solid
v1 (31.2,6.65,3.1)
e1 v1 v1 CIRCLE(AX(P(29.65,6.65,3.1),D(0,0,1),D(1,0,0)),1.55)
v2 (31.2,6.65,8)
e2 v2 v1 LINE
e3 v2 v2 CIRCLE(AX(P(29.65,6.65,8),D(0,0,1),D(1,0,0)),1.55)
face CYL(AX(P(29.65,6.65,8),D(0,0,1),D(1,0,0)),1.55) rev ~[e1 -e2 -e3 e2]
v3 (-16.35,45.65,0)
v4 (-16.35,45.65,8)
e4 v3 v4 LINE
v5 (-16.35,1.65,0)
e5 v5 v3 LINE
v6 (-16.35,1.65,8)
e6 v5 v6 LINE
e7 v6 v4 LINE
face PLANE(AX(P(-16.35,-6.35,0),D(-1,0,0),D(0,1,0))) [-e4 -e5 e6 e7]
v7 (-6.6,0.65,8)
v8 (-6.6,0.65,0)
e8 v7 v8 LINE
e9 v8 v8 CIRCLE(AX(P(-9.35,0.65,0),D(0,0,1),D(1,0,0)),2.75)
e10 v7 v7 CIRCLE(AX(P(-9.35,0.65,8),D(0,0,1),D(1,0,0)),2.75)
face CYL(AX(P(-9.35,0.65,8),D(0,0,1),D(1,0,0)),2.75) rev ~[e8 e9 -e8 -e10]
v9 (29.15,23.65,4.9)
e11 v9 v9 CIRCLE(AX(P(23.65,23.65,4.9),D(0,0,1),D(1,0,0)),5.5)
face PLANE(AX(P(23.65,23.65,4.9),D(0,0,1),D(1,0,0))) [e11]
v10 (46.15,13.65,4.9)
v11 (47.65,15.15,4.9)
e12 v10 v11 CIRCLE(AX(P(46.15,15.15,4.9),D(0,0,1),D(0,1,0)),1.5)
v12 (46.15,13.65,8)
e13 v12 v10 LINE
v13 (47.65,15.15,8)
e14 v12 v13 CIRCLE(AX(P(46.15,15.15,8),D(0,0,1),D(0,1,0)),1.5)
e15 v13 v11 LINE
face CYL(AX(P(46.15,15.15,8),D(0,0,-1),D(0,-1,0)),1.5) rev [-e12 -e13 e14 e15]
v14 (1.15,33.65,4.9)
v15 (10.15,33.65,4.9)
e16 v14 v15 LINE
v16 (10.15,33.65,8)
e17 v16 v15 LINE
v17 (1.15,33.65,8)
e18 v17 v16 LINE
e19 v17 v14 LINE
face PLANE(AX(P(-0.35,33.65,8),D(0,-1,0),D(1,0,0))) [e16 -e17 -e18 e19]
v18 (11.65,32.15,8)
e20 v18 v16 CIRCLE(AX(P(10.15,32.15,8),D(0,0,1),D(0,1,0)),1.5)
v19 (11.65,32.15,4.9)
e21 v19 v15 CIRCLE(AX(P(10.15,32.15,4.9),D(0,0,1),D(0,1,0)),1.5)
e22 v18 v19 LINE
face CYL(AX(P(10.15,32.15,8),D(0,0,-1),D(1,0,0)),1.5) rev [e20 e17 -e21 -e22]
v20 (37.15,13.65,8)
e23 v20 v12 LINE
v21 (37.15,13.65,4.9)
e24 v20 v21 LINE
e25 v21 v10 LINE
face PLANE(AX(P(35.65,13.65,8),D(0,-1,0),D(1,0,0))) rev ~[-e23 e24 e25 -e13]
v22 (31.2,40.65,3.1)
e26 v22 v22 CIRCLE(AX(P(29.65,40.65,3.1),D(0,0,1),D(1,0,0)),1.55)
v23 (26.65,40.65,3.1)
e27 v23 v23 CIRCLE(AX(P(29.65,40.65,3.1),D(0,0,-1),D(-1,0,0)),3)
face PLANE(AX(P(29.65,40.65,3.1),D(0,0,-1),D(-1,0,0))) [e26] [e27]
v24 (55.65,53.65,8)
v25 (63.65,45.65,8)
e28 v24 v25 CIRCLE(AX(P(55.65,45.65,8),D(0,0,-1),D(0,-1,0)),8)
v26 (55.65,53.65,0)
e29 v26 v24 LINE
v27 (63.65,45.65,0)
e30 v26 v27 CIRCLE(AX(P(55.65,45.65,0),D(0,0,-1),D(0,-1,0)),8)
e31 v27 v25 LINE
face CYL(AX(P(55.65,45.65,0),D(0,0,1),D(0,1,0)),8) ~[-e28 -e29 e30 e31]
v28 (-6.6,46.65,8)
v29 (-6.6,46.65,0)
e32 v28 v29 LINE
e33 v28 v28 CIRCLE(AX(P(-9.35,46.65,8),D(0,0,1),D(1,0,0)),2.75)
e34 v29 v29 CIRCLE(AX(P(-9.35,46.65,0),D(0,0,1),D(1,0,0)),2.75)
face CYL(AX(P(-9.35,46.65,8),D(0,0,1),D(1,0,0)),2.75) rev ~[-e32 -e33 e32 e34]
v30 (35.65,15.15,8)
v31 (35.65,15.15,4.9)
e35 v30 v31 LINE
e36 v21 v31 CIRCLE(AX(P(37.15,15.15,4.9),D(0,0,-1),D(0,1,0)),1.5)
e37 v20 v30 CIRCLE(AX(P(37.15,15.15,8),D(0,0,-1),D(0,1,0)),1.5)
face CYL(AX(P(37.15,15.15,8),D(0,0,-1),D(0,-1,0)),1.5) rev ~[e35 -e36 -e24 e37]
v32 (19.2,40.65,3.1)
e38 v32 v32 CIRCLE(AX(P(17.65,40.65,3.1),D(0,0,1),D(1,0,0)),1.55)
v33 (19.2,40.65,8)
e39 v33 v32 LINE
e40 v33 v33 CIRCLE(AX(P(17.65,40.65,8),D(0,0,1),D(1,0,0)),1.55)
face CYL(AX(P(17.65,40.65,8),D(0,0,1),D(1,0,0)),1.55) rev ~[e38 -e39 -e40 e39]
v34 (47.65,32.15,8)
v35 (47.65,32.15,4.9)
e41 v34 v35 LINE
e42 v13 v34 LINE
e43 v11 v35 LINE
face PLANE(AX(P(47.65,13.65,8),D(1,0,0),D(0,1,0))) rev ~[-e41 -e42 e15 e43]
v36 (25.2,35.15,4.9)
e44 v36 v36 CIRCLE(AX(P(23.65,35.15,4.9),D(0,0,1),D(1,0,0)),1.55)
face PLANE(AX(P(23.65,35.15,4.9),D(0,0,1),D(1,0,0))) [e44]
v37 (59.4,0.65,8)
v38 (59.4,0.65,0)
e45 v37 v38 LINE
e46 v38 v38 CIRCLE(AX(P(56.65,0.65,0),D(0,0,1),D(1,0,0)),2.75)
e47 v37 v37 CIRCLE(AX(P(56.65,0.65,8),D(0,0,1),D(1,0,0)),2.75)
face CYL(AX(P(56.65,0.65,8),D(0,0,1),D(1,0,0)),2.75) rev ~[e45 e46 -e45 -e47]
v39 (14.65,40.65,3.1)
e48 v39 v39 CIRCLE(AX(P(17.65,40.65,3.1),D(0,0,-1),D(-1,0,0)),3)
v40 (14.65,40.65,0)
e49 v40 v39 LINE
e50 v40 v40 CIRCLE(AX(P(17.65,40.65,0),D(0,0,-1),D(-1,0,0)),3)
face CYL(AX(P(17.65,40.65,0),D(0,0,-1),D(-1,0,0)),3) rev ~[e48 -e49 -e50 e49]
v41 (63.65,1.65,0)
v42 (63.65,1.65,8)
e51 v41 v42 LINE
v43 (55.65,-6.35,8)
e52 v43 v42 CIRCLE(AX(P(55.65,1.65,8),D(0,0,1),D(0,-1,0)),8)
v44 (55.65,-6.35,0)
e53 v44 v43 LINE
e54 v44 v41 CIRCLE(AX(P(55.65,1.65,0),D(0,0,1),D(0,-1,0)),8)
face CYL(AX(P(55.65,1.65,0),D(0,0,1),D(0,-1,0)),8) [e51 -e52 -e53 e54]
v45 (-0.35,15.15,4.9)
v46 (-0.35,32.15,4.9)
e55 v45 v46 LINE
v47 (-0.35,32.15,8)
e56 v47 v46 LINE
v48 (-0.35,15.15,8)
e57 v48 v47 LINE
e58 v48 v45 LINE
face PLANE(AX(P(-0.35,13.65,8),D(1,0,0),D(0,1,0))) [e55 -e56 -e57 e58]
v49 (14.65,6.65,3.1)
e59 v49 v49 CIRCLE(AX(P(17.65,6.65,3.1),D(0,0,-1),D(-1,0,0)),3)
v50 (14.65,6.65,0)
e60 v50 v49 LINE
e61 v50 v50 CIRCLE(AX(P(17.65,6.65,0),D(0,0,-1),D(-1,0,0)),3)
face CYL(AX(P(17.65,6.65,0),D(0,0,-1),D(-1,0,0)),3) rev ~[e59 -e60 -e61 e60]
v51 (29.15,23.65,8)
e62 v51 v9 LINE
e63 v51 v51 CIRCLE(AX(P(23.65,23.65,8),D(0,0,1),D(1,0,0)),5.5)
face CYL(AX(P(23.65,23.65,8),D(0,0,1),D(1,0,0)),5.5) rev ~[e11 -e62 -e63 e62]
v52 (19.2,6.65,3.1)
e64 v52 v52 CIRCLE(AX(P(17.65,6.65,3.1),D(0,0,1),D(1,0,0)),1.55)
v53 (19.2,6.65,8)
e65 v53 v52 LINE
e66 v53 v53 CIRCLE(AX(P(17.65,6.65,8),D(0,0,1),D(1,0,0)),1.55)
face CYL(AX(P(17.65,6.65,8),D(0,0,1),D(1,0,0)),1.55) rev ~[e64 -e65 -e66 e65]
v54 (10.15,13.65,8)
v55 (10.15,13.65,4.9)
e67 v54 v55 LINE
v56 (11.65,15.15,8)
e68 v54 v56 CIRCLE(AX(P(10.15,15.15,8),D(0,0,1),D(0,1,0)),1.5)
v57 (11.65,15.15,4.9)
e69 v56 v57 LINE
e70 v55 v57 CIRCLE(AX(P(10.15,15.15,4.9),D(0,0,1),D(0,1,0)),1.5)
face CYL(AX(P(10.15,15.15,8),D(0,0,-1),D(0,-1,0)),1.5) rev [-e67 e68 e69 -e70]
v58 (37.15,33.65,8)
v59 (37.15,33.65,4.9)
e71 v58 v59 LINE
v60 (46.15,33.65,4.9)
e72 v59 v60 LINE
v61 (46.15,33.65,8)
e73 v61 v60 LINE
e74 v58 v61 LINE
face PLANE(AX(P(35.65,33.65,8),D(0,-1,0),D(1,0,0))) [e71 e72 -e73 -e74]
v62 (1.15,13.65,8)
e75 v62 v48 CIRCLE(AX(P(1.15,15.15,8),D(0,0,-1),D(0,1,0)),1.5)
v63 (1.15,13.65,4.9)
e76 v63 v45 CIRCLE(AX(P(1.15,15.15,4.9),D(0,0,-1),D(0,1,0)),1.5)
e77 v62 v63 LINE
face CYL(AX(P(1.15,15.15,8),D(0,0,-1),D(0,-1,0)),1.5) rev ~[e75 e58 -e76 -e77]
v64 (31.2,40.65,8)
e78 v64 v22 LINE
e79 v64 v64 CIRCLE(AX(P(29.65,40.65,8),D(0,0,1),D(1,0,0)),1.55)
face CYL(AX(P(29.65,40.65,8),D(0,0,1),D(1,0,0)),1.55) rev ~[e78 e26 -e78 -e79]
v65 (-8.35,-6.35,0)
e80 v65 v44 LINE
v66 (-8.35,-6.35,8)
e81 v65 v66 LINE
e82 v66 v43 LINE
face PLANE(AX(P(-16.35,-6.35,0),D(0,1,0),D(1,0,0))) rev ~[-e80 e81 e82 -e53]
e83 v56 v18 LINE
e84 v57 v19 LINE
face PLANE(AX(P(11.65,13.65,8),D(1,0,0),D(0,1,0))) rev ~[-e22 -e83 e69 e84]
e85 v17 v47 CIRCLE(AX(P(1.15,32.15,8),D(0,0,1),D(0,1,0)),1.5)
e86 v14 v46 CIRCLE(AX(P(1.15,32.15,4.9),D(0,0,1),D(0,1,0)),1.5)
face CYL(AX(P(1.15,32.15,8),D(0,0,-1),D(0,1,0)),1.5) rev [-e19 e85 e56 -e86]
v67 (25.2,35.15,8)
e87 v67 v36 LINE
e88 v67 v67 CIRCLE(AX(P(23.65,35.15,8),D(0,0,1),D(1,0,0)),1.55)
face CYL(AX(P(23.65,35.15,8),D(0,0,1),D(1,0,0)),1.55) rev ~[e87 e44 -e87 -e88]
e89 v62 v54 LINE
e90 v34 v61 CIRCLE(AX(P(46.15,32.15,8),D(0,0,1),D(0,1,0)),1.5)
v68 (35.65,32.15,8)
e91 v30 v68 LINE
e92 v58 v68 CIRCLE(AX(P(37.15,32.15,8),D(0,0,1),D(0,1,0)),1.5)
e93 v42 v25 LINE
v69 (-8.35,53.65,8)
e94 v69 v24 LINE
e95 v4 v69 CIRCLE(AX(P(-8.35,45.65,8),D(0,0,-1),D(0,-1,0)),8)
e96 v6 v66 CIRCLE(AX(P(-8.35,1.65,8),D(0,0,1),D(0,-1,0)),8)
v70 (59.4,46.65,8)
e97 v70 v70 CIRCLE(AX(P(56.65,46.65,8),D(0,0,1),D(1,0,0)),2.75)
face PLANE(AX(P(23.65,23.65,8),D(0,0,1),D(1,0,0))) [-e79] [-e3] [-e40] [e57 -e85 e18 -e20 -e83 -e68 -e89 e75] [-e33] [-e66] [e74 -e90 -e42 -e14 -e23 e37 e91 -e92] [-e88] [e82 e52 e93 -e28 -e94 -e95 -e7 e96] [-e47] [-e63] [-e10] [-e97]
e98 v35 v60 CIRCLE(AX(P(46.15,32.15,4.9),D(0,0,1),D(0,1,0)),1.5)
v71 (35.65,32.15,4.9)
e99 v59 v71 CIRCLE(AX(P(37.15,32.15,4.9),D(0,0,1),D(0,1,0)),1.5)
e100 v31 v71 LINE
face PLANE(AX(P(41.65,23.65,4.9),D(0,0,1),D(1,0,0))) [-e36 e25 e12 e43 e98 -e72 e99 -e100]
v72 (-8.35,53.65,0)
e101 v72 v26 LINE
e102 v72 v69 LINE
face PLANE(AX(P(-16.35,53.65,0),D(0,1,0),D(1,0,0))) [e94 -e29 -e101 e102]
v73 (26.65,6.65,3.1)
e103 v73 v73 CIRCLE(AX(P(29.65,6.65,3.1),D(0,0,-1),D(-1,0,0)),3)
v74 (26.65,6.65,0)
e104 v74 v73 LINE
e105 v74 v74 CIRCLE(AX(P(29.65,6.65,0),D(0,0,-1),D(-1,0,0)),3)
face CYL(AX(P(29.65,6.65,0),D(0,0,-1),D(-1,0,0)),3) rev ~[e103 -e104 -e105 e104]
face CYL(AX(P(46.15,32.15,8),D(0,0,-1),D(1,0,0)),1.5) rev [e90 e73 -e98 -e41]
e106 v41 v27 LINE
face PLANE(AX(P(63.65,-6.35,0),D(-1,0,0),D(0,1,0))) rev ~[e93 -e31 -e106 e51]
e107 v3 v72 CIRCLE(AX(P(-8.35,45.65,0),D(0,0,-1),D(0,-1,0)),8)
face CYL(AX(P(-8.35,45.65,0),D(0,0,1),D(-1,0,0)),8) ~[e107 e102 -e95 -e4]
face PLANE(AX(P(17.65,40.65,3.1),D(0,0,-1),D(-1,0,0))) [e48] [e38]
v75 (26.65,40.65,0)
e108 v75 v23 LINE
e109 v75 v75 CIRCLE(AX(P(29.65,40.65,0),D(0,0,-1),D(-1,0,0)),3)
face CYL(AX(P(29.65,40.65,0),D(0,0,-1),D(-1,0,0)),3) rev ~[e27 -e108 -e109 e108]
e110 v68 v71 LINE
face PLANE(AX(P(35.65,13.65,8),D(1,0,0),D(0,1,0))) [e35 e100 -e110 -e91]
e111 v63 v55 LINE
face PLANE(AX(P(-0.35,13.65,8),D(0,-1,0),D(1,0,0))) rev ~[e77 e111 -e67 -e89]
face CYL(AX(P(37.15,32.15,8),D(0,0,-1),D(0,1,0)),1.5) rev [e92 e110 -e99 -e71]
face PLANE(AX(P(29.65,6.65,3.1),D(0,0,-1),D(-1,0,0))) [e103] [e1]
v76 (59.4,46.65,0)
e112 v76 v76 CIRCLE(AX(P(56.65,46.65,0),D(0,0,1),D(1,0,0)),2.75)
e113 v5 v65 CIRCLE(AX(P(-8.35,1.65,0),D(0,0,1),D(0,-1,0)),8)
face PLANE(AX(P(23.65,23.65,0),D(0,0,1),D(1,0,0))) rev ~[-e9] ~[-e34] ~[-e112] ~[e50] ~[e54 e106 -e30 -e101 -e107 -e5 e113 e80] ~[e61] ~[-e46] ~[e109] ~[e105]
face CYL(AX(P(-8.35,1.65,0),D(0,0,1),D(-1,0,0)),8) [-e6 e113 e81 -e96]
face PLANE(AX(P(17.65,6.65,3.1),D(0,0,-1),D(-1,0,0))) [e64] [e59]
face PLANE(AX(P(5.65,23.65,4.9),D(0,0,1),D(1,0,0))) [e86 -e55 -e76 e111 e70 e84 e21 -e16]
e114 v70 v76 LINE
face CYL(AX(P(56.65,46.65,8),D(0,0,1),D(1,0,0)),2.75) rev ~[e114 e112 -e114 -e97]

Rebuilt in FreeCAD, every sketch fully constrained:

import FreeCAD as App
import Part
import Sketcher

V = App.Vector
Q = App.Units.Quantity


def edges_at(feature, points):
    """Names of the edges that pass closest to the given points."""
    edges = feature.Shape.Edges
    near = lambda p: min(range(len(edges)), key=lambda i: edges[i].distToShape(Part.Vertex(*p))[0])
    return sorted({f"Edge{near(p) + 1}" for p in points})

doc = App.newDocument("Part")
body = doc.addObject("PartDesign::Body", "Body")

sketch1 = body.newObject("Sketcher::SketchObject", "Sketch")
sketch1.AttachmentSupport = (doc.getObject("XY_Plane"), [""])
sketch1.MapMode = "FlatFace"
sketch1.addGeometry(Part.LineSegment(V(-16, 54, 0), V(-16, -6, 0)), False)
sketch1.addGeometry(Part.LineSegment(V(-16, -6, 0), V(64, -6, 0)), False)
sketch1.addGeometry(Part.LineSegment(V(64, -6, 0), V(64, 54, 0)), False)
sketch1.addGeometry(Part.LineSegment(V(64, 54, 0), V(-16, 54, 0)), False)
sketch1.addConstraint(Sketcher.Constraint("Coincident", 0, 2, 1, 1))
sketch1.addConstraint(Sketcher.Constraint("Coincident", 1, 2, 2, 1))
sketch1.addConstraint(Sketcher.Constraint("Coincident", 2, 2, 3, 1))
sketch1.addConstraint(Sketcher.Constraint("Coincident", 3, 2, 0, 1))
sketch1.addConstraint(Sketcher.Constraint("Vertical", 0))
sketch1.addConstraint(Sketcher.Constraint("Horizontal", 1))
sketch1.addConstraint(Sketcher.Constraint("Vertical", 2))
sketch1.addConstraint(Sketcher.Constraint("Horizontal", 3))
sketch1.addConstraint(Sketcher.Constraint("DistanceX", 1, 1, 1, 2, Q("80 mm")))
sketch1.addConstraint(Sketcher.Constraint("DistanceY", 0, 2, 0, 1, Q("60 mm")))
sketch1.addConstraint(Sketcher.Constraint("DistanceX", 0, 2, -1, 1, Q("16.35 mm")))
sketch1.addConstraint(Sketcher.Constraint("DistanceY", 0, 2, -1, 1, Q("6.35 mm")))
pad1 = body.newObject("PartDesign::Pad", "Pad")
pad1.Profile = sketch1
pad1.Length = 8

sketch2 = body.newObject("Sketcher::SketchObject", "Sketch001")
sketch2.AttachmentSupport = (doc.getObject("XY_Plane"), [""])
sketch2.MapMode = "FlatFace"
sketch2.AttachmentOffset = App.Placement(V(0, 0, 8), App.Rotation())
sketch2.addGeometry(Part.Circle(V(23.6, 23.6, 0), V(0, 0, 1), 5.5), False)
sketch2.addGeometry(Part.Circle(V(23.6, 35.1, 0), V(0, 0, 1), 1.6), False)
sketch2.addGeometry(Part.LineSegment(V(-0.3, 33.6, 0), V(-0.3, 13.7, 0)), False)
sketch2.addGeometry(Part.LineSegment(V(-0.3, 13.7, 0), V(11.7, 13.7, 0)), False)
sketch2.addGeometry(Part.LineSegment(V(11.7, 13.7, 0), V(11.7, 33.6, 0)), False)
sketch2.addGeometry(Part.LineSegment(V(11.7, 33.6, 0), V(-0.3, 33.6, 0)), False)
sketch2.addGeometry(Part.LineSegment(V(35.6, 33.6, 0), V(35.6, 13.7, 0)), False)
sketch2.addGeometry(Part.LineSegment(V(35.6, 13.7, 0), V(47.6, 13.7, 0)), False)
sketch2.addGeometry(Part.LineSegment(V(47.6, 13.7, 0), V(47.6, 33.6, 0)), False)
sketch2.addGeometry(Part.LineSegment(V(47.6, 33.6, 0), V(35.6, 33.6, 0)), False)
sketch2.addConstraint(Sketcher.Constraint("Coincident", 2, 2, 3, 1))
sketch2.addConstraint(Sketcher.Constraint("Coincident", 3, 2, 4, 1))
sketch2.addConstraint(Sketcher.Constraint("Coincident", 4, 2, 5, 1))
sketch2.addConstraint(Sketcher.Constraint("Coincident", 5, 2, 2, 1))
sketch2.addConstraint(Sketcher.Constraint("Coincident", 6, 2, 7, 1))
sketch2.addConstraint(Sketcher.Constraint("Coincident", 7, 2, 8, 1))
sketch2.addConstraint(Sketcher.Constraint("Coincident", 8, 2, 9, 1))
sketch2.addConstraint(Sketcher.Constraint("Coincident", 9, 2, 6, 1))
sketch2.addConstraint(Sketcher.Constraint("Vertical", 2))
sketch2.addConstraint(Sketcher.Constraint("Horizontal", 3))
sketch2.addConstraint(Sketcher.Constraint("Vertical", 4))
sketch2.addConstraint(Sketcher.Constraint("Horizontal", 5))
sketch2.addConstraint(Sketcher.Constraint("Vertical", 6))
sketch2.addConstraint(Sketcher.Constraint("Horizontal", 7))
sketch2.addConstraint(Sketcher.Constraint("Vertical", 8))
sketch2.addConstraint(Sketcher.Constraint("Horizontal", 9))
sketch2.addConstraint(Sketcher.Constraint("Horizontal", 3, 2, 6, 2))
sketch2.addConstraint(Sketcher.Constraint("Horizontal", 5, 2, 8, 2))
sketch2.addConstraint(Sketcher.Constraint("Vertical", 0, 3, 1, 3))
sketch2.addConstraint(Sketcher.Constraint("Equal", 5, 7))
sketch2.addConstraint(Sketcher.Constraint("Diameter", 0, Q("11 mm")))
sketch2.addConstraint(Sketcher.Constraint("Diameter", 1, Q("3.1 mm")))
sketch2.addConstraint(Sketcher.Constraint("DistanceX", 3, 1, 3, 2, Q("12 mm")))
sketch2.addConstraint(Sketcher.Constraint("DistanceY", 2, 2, 2, 1, Q("20 mm")))
sketch2.addConstraint(Sketcher.Constraint("DistanceX", 2, 2, 0, 3, Q("24 mm")))
sketch2.addConstraint(Sketcher.Constraint("DistanceY", 2, 2, 0, 3, Q("10 mm")))
sketch2.addConstraint(Sketcher.Constraint("DistanceX", 0, 3, 6, 2, Q("12 mm")))
sketch2.addConstraint(Sketcher.Constraint("DistanceY", 0, 3, 1, 3, Q("11.5 mm")))
sketch2.addConstraint(Sketcher.Constraint("DistanceX", -1, 1, 0, 3, Q("23.65 mm")))
sketch2.addConstraint(Sketcher.Constraint("DistanceY", -1, 1, 0, 3, Q("23.65 mm")))
pocket1 = body.newObject("PartDesign::Pocket", "Pocket")
pocket1.Profile = sketch2
pocket1.Length = 3.1
doc.recompute()

fillet = body.newObject("PartDesign::Fillet", "Fillet")
fillet.Base = (pocket1, edges_at(pocket1, [
    (11.65, 33.65, 6.45),
    (11.65, 13.65, 6.45),
    (-0.35, 13.65, 6.45),
    (-0.35, 33.65, 6.45),
    (47.65, 33.65, 6.45),
    (47.65, 13.65, 6.45),
    (35.65, 13.65, 6.45),
    (35.65, 33.65, 6.45),
]))
fillet.Radius = 1.5

sketch3 = body.newObject("Sketcher::SketchObject", "Sketch002")
sketch3.AttachmentSupport = (doc.getObject("XY_Plane"), [""])
sketch3.MapMode = "FlatFace"
sketch3.AttachmentOffset = App.Placement(V(0, 0, 8), App.Rotation())
sketch3.addGeometry(Part.Circle(V(17.6, 40.6, 0), V(0, 0, 1), 1.6), False)
sketch3.addGeometry(Part.Circle(V(29.6, 40.6, 0), V(0, 0, 1), 1.6), False)
sketch3.addGeometry(Part.Circle(V(29.6, 6.7, 0), V(0, 0, 1), 1.6), False)
sketch3.addGeometry(Part.Circle(V(17.6, 6.7, 0), V(0, 0, 1), 1.6), False)
sketch3.addConstraint(Sketcher.Constraint("Equal", 0, 1))
sketch3.addConstraint(Sketcher.Constraint("Equal", 1, 2))
sketch3.addConstraint(Sketcher.Constraint("Equal", 2, 3))
sketch3.addConstraint(Sketcher.Constraint("Horizontal", 0, 3, 1, 3))
sketch3.addConstraint(Sketcher.Constraint("Horizontal", 2, 3, 3, 3))
sketch3.addConstraint(Sketcher.Constraint("Vertical", 1, 3, 2, 3))
sketch3.addConstraint(Sketcher.Constraint("Vertical", 0, 3, 3, 3))
sketch3.addConstraint(Sketcher.Constraint("Diameter", 0, Q("3.1 mm")))
sketch3.addConstraint(Sketcher.Constraint("DistanceX", 0, 3, 1, 3, Q("12 mm")))
sketch3.addConstraint(Sketcher.Constraint("DistanceY", 2, 3, 1, 3, Q("34 mm")))
sketch3.addConstraint(Sketcher.Constraint("DistanceX", -1, 1, 0, 3, Q("17.65 mm")))
sketch3.addConstraint(Sketcher.Constraint("DistanceY", -1, 1, 0, 3, Q("40.65 mm")))
pocket2 = body.newObject("PartDesign::Pocket", "Pocket001")
pocket2.Profile = sketch3
pocket2.Length = 10
doc.recompute()

fillet2 = body.newObject("PartDesign::Fillet", "Fillet001")
fillet2.Base = (pocket2, edges_at(pocket2, [
    (63.65, -6.35, 4),
    (-16.35, -6.35, 4),
    (-16.35, 53.65, 4),
    (63.65, 53.65, 4),
]))
fillet2.Radius = 8

sketch4 = body.newObject("Sketcher::SketchObject", "Sketch003")
sketch4.AttachmentSupport = (doc.getObject("XY_Plane"), [""])
sketch4.MapMode = "FlatFace"
sketch4.addGeometry(Part.Circle(V(29.6, 40.6, 0), V(0, 0, 1), 3), False)
sketch4.addGeometry(Part.Circle(V(17.6, 40.6, 0), V(0, 0, 1), 3), False)
sketch4.addGeometry(Part.Circle(V(17.6, 6.7, 0), V(0, 0, 1), 3), False)
sketch4.addGeometry(Part.Circle(V(29.6, 6.7, 0), V(0, 0, 1), 3), False)
sketch4.addConstraint(Sketcher.Constraint("Equal", 0, 1))
sketch4.addConstraint(Sketcher.Constraint("Equal", 1, 2))
sketch4.addConstraint(Sketcher.Constraint("Equal", 2, 3))
sketch4.addConstraint(Sketcher.Constraint("Horizontal", 0, 3, 1, 3))
sketch4.addConstraint(Sketcher.Constraint("Horizontal", 2, 3, 3, 3))
sketch4.addConstraint(Sketcher.Constraint("Vertical", 1, 3, 2, 3))
sketch4.addConstraint(Sketcher.Constraint("Vertical", 0, 3, 3, 3))
sketch4.addConstraint(Sketcher.Constraint("Diameter", 0, Q("6 mm")))
sketch4.addConstraint(Sketcher.Constraint("DistanceX", 1, 3, 0, 3, Q("12 mm")))
sketch4.addConstraint(Sketcher.Constraint("DistanceY", 2, 3, 1, 3, Q("34 mm")))
sketch4.addConstraint(Sketcher.Constraint("DistanceX", -1, 1, 0, 3, Q("29.65 mm")))
sketch4.addConstraint(Sketcher.Constraint("DistanceY", -1, 1, 0, 3, Q("40.65 mm")))
pocket3 = body.newObject("PartDesign::Pocket", "Pocket002")
pocket3.Profile = sketch4
pocket3.Length = 3.1
pocket3.Reversed = True

sketch5 = body.newObject("Sketcher::SketchObject", "Sketch004")
sketch5.AttachmentSupport = (doc.getObject("XY_Plane"), [""])
sketch5.MapMode = "FlatFace"
sketch5.AttachmentOffset = App.Placement(V(0, 0, 8), App.Rotation())
sketch5.addGeometry(Part.Circle(V(56.6, 0.7, 0), V(0, 0, 1), 2.8), False)
sketch5.addGeometry(Part.Circle(V(56.6, 46.6, 0), V(0, 0, 1), 2.8), False)
sketch5.addGeometry(Part.Circle(V(-9.3, 46.6, 0), V(0, 0, 1), 2.8), False)
sketch5.addGeometry(Part.Circle(V(-9.3, 0.7, 0), V(0, 0, 1), 2.8), False)
sketch5.addConstraint(Sketcher.Constraint("Equal", 0, 1))
sketch5.addConstraint(Sketcher.Constraint("Equal", 1, 2))
sketch5.addConstraint(Sketcher.Constraint("Equal", 2, 3))
sketch5.addConstraint(Sketcher.Constraint("Horizontal", 1, 3, 2, 3))
sketch5.addConstraint(Sketcher.Constraint("Horizontal", 0, 3, 3, 3))
sketch5.addConstraint(Sketcher.Constraint("Vertical", 0, 3, 1, 3))
sketch5.addConstraint(Sketcher.Constraint("Vertical", 2, 3, 3, 3))
sketch5.addConstraint(Sketcher.Constraint("Diameter", 0, Q("5.5 mm")))
sketch5.addConstraint(Sketcher.Constraint("DistanceY", 0, 3, 1, 3, Q("46 mm")))
sketch5.addConstraint(Sketcher.Constraint("DistanceX", 2, 3, 1, 3, Q("66 mm")))
sketch5.addConstraint(Sketcher.Constraint("DistanceX", -1, 1, 0, 3, Q("56.65 mm")))
sketch5.addConstraint(Sketcher.Constraint("DistanceY", -1, 1, 0, 3, Q("0.65 mm")))
pocket4 = body.newObject("PartDesign::Pocket", "Pocket003")
pocket4.Profile = sketch5
pocket4.Length = 10

doc.recompute()
